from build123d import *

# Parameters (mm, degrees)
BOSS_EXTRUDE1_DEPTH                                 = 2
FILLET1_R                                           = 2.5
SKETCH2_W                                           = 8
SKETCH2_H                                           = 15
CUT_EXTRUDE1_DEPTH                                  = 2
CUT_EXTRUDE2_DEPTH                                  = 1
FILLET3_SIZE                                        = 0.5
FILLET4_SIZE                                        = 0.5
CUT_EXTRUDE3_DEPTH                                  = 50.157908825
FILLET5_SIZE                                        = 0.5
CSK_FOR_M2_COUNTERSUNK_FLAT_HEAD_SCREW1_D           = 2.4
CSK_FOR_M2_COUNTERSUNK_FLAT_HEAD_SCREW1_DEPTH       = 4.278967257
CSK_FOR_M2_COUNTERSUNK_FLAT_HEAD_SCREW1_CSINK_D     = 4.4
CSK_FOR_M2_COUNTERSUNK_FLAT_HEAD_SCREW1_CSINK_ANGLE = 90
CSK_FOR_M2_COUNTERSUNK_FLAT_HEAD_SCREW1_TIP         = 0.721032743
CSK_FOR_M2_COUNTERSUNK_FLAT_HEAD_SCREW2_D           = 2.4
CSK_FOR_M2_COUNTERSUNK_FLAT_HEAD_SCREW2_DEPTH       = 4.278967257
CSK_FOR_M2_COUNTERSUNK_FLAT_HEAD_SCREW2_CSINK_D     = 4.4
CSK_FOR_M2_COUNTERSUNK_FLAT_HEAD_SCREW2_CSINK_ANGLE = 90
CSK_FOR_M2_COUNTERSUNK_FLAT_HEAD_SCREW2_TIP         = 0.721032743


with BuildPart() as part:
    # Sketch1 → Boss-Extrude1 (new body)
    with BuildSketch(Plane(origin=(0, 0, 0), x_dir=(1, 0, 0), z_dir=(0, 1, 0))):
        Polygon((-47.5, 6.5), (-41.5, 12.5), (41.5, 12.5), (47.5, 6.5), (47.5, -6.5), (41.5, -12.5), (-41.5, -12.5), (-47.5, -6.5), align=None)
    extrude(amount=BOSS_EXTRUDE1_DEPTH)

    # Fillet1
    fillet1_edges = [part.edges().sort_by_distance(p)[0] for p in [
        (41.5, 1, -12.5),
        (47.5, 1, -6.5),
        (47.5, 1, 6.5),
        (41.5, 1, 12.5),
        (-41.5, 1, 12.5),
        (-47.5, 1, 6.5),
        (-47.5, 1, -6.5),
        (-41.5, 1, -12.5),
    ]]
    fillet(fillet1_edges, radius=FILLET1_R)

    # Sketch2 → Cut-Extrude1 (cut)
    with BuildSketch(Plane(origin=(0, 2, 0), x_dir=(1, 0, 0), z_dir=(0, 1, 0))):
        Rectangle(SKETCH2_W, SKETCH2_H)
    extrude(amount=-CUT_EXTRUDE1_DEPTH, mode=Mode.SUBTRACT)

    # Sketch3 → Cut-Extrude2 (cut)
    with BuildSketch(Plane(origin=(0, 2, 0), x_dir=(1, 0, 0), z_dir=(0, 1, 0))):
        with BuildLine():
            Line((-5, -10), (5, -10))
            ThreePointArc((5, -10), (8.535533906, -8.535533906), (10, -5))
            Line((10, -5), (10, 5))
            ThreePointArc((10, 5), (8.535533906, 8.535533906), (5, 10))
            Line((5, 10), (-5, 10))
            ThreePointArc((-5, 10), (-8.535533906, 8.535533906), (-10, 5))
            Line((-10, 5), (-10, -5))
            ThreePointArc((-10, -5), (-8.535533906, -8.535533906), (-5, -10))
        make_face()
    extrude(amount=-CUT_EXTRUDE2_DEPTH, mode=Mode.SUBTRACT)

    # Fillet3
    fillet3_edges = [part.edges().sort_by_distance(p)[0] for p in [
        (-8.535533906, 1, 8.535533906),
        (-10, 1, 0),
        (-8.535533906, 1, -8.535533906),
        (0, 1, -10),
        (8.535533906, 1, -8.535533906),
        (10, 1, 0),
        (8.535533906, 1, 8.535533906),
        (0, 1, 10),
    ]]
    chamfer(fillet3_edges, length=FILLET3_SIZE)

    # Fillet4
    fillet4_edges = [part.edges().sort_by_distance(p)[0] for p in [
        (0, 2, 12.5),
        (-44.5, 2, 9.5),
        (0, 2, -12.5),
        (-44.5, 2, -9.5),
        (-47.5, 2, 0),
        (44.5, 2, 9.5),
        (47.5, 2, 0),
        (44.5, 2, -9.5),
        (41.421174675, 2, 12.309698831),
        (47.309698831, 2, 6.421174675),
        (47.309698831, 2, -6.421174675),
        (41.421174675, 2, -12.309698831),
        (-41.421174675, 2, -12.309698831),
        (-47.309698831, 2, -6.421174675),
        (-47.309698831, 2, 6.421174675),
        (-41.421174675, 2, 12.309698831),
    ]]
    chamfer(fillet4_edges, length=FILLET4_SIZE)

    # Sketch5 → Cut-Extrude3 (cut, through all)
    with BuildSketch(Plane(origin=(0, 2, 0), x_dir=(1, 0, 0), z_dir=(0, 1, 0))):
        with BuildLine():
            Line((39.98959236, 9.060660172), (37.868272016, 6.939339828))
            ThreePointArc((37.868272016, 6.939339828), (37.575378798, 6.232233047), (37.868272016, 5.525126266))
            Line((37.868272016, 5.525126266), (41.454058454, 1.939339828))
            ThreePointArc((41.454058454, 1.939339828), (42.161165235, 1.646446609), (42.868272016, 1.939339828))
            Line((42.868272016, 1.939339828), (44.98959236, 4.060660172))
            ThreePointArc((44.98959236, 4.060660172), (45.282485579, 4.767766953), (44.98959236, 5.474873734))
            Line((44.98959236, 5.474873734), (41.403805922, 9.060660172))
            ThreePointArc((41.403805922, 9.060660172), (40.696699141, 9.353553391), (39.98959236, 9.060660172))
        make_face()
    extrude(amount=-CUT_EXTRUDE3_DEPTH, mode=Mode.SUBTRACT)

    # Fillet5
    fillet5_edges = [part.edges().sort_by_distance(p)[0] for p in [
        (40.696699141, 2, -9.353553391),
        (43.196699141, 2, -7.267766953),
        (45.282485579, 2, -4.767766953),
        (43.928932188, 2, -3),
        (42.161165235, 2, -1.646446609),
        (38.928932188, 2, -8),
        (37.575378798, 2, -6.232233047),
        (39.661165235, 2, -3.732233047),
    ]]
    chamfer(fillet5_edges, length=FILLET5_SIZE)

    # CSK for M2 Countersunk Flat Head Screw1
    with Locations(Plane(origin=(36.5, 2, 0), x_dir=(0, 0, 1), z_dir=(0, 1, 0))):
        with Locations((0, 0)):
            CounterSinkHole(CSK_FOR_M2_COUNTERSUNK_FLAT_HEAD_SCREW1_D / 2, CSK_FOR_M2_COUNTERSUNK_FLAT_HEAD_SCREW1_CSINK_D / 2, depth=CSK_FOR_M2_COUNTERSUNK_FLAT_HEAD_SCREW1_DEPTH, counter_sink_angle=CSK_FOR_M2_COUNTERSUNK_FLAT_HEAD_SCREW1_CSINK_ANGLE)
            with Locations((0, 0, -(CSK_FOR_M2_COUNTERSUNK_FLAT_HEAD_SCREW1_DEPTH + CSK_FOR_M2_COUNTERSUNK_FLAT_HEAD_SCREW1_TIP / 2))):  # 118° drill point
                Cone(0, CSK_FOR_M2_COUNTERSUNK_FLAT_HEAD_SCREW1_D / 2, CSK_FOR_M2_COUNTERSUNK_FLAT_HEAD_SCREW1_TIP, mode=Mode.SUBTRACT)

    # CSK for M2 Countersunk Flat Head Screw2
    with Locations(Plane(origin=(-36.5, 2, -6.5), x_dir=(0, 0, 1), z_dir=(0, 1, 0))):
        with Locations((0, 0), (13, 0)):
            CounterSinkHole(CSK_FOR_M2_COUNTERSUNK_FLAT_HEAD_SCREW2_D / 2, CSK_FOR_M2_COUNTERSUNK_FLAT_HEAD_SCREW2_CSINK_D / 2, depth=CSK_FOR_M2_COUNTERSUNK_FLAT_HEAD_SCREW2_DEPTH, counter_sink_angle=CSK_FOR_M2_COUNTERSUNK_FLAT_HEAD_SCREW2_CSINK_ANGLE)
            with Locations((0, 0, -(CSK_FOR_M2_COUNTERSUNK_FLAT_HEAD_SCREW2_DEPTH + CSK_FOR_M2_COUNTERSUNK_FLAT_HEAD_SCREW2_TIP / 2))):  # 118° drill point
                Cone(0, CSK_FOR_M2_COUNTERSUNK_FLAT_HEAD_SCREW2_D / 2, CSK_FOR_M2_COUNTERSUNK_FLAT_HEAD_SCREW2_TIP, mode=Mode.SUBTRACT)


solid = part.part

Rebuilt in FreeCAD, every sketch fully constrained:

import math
import FreeCAD as App
import Part
import Sketcher


def edges_at(feature, points):
    """Names of the edges that pass closest to the given points."""
    edges = feature.Shape.Edges
    near = lambda p: min(range(len(edges)), key=lambda i: edges[i].distToShape(Part.Vertex(*p))[0])
    return sorted({f"Edge{near(p) + 1}" for p in points})

doc = App.newDocument("Part")
body = doc.addObject("PartDesign::Body", "Body")

# Sketch on XZ plane
sketch1 = body.newObject("Sketcher::SketchObject", "Sketch")
sketch1.AttachmentSupport = (doc.getObject("XZ_Plane"), [""])
sketch1.MapMode = "FlatFace"
sketch1.addGeometry([
    Part.LineSegment(App.Vector(-41.5, -12.5, 0), App.Vector(-47.5, -6.5, 0)),  # 0
    Part.LineSegment(App.Vector(-47.5, -6.5, 0), App.Vector(-47.5, 6.5, 0)),  # 1
    Part.LineSegment(App.Vector(-47.5, 6.5, 0), App.Vector(-41.5, 12.5, 0)),  # 2
    Part.LineSegment(App.Vector(-41.5, 12.5, 0), App.Vector(41.5, 12.5, 0)),  # 3
    Part.LineSegment(App.Vector(41.5, 12.5, 0), App.Vector(47.5, 6.5, 0)),  # 4
    Part.LineSegment(App.Vector(47.5, 6.5, 0), App.Vector(47.5, -6.5, 0)),  # 5
    Part.LineSegment(App.Vector(47.5, -6.5, 0), App.Vector(41.5, -12.5, 0)),  # 6
    Part.LineSegment(App.Vector(41.5, -12.5, 0), App.Vector(-41.5, -12.5, 0)),  # 7
], False)
sketch1.addConstraint([
    Sketcher.Constraint("Coincident", 0, 2, 1, 1),
    Sketcher.Constraint("Coincident", 1, 2, 2, 1),
    Sketcher.Constraint("Coincident", 2, 2, 3, 1),
    Sketcher.Constraint("Coincident", 3, 2, 4, 1),
    Sketcher.Constraint("Coincident", 4, 2, 5, 1),
    Sketcher.Constraint("Coincident", 5, 2, 6, 1),
    Sketcher.Constraint("Coincident", 6, 2, 7, 1),
    Sketcher.Constraint("Coincident", 7, 2, 0, 1),
    Sketcher.Constraint("Vertical", 1),
    Sketcher.Constraint("Horizontal", 3),
    Sketcher.Constraint("Vertical", 5),
    Sketcher.Constraint("Horizontal", 7),
    Sketcher.Constraint("Symmetric", 0, 2, 4, 2, -1, 1),
    Sketcher.Constraint("Symmetric", 2, 2, 6, 2, -1, 1),
    Sketcher.Constraint("Perpendicular", 0, 2),
    Sketcher.Constraint("Perpendicular", 2, 4),
    Sketcher.Constraint("Perpendicular", 4, 6),
    Sketcher.Constraint("Horizontal", 1, 2, 4, 2),
    Sketcher.Constraint("Vertical", 3, 2, 6, 2),
    Sketcher.Constraint("DistanceX", 3, 1, 3, 2, 83.0),
    Sketcher.Constraint("DistanceY", 1, 1, 1, 2, 13.0),
    Sketcher.Constraint("DistanceX", 1, 2, 2, 2, 6.0),
])
pad1 = body.newObject("PartDesign::Pad", "Pad")
pad1.Profile = sketch1
pad1.Length = 2
pad1.Reversed = True
doc.recompute()

fillet = body.newObject("PartDesign::Fillet", "Fillet")
fillet.Base = (pad1, edges_at(pad1, [
    (41.5, 1, -12.5),
    (47.5, 1, -6.5),
    (47.5, 1, 6.5),
    (41.5, 1, 12.5),
    (-41.5, 1, 12.5),
    (-47.5, 1, 6.5),
    (-47.5, 1, -6.5),
    (-41.5, 1, -12.5),
]))
fillet.Radius = 2.5

# Sketch on XZ plane
sketch2 = body.newObject("Sketcher::SketchObject", "Sketch001")
sketch2.AttachmentSupport = (doc.getObject("XZ_Plane"), [""])
sketch2.MapMode = "FlatFace"
sketch2.AttachmentOffset = App.Placement(App.Vector(0, 0, -2), App.Rotation())
sketch2.addGeometry([
    Part.LineSegment(App.Vector(-4, -7.5, 0), App.Vector(-4, 7.5, 0)),
    Part.LineSegment(App.Vector(-4, 7.5, 0), App.Vector(4, 7.5, 0)),
    Part.LineSegment(App.Vector(4, 7.5, 0), App.Vector(4, -7.5, 0)),
    Part.LineSegment(App.Vector(4, -7.5, 0), App.Vector(-4, -7.5, 0)),
], False)
sketch2.addConstraint([
    Sketcher.Constraint("Coincident", 0, 2, 1, 1),
    Sketcher.Constraint("Coincident", 1, 2, 2, 1),
    Sketcher.Constraint("Coincident", 2, 2, 3, 1),
    Sketcher.Constraint("Coincident", 3, 2, 0, 1),
    Sketcher.Constraint("Vertical", 0),
    Sketcher.Constraint("Horizontal", 1),
    Sketcher.Constraint("Vertical", 2),
    Sketcher.Constraint("Horizontal", 3),
    Sketcher.Constraint("Symmetric", 0, 2, 2, 2, -1, 1),
    Sketcher.Constraint("DistanceX", 1, 1, 1, 2, 8.0),
    Sketcher.Constraint("DistanceY", 0, 1, 0, 2, 15.0),
])
pocket1 = body.newObject("PartDesign::Pocket", "Pocket")
pocket1.Profile = sketch2
pocket1.Length = 2
pocket1.Reversed = True

# Sketch on XZ plane
sketch3 = body.newObject("Sketcher::SketchObject", "Sketch002")
sketch3.AttachmentSupport = (doc.getObject("XZ_Plane"), [""])
sketch3.MapMode = "FlatFace"
sketch3.AttachmentOffset = App.Placement(App.Vector(0, 0, -2), App.Rotation())
sketch3.addGeometry([
    Part.LineSegment(App.Vector(-5, 10, 0), App.Vector(5, 10, 0)),  # 0
    Part.ArcOfCircle(Part.Circle(App.Vector(5, 5, 0), App.Vector(0, 0, 1), 5), math.radians(0), math.radians(90)),  # 1
    Part.LineSegment(App.Vector(10, 5, 0), App.Vector(10, -5, 0)),  # 2
    Part.ArcOfCircle(Part.Circle(App.Vector(5, -5, 0), App.Vector(0, 0, 1), 5), math.radians(-90), math.radians(0)),  # 3
    Part.LineSegment(App.Vector(5, -10, 0), App.Vector(-5, -10, 0)),  # 4
    Part.ArcOfCircle(Part.Circle(App.Vector(-5, -5, 0), App.Vector(0, 0, 1), 5), math.radians(180), math.radians(270)),  # 5
    Part.LineSegment(App.Vector(-10, -5, 0), App.Vector(-10, 5, 0)),  # 6
    Part.ArcOfCircle(Part.Circle(App.Vector(-5, 5, 0), App.Vector(0, 0, 1), 5), math.radians(90), math.radians(180)),  # 7
], False)
sketch3.addConstraint([
    Sketcher.Constraint("Tangent", 0, 2, 1, 2),
    Sketcher.Constraint("Tangent", 1, 1, 2, 1),
    Sketcher.Constraint("Tangent", 2, 2, 3, 2),
    Sketcher.Constraint("Tangent", 3, 1, 4, 1),
    Sketcher.Constraint("Tangent", 4, 2, 5, 2),
    Sketcher.Constraint("Tangent", 5, 1, 6, 1),
    Sketcher.Constraint("Tangent", 6, 2, 7, 2),
    Sketcher.Constraint("Tangent", 7, 1, 0, 1),
    Sketcher.Constraint("Horizontal", 0),
    Sketcher.Constraint("Vertical", 2),
    Sketcher.Constraint("Horizontal", 4),
    Sketcher.Constraint("Vertical", 6),
    Sketcher.Constraint("Equal", 1, 3),
    Sketcher.Constraint("Equal", 3, 5),
    Sketcher.Constraint("Equal", 5, 7),
    Sketcher.Constraint("Symmetric", 1, 3, 5, 3, -1, 1),
    Sketcher.Constraint("Equal", 4, 2),
    Sketcher.Constraint("Radius", 1, 5.0),
    Sketcher.Constraint("DistanceX", 0, 1, 0, 2, 10.0),
])
pocket2 = body.newObject("PartDesign::Pocket", "Pocket001")
pocket2.Profile = sketch3
pocket2.Length = 1
pocket2.Reversed = True
doc.recompute()

chamfer = body.newObject("PartDesign::Chamfer", "Chamfer")
chamfer.Base = (pocket2, edges_at(pocket2, [
    (-8.536, 1, 8.536),
    (-10, 1, 0),
    (-8.536, 1, -8.536),
    (0, 1, -10),
    (8.536, 1, -8.536),
    (10, 1, 0),
    (8.536, 1, 8.536),
    (0, 1, 10),
]))
chamfer.Size = 0.5
doc.recompute()

chamfer2 = body.newObject("PartDesign::Chamfer", "Chamfer001")
chamfer2.Base = (chamfer, edges_at(chamfer, [
    (0, 2, 12.5),
    (-44.5, 2, 9.5),
    (0, 2, -12.5),
    (-44.5, 2, -9.5),
    (-47.5, 2, 0),
    (44.5, 2, 9.5),
    (47.5, 2, 0),
    (44.5, 2, -9.5),
    (41.421, 2, 12.31),
    (47.31, 2, 6.421),
    (47.31, 2, -6.421),
    (41.421, 2, -12.31),
    (-41.421, 2, -12.31),
    (-47.31, 2, -6.421),
    (-47.31, 2, 6.421),
    (-41.421, 2, 12.31),
]))
chamfer2.Size = 0.5

# Sketch on XZ plane
sketch4 = body.newObject("Sketcher::SketchObject", "Sketch003")
sketch4.AttachmentSupport = (doc.getObject("XZ_Plane"), [""])
sketch4.MapMode = "FlatFace"
sketch4.AttachmentOffset = App.Placement(App.Vector(0, 0, -2), App.Rotation())
sketch4.addGeometry([
    Part.LineSegment(App.Vector(39.989592, -9.06066, 0), App.Vector(37.868272, -6.93934, 0)),  # 0
    Part.ArcOfCircle(Part.Circle(App.Vector(38.575379, -6.232233, 0), App.Vector(0, 0, 1), 1), math.radians(135), math.radians(225)),  # 1
    Part.LineSegment(App.Vector(37.868272, -5.525126, 0), App.Vector(41.454058, -1.93934, 0)),  # 2
    Part.ArcOfCircle(Part.Circle(App.Vector(42.161165, -2.646447, 0), App.Vector(0, 0, 1), 1), math.radians(45), math.radians(135)),  # 3
    Part.LineSegment(App.Vector(42.868272, -1.93934, 0), App.Vector(44.989592, -4.06066, 0)),  # 4
    Part.ArcOfCircle(Part.Circle(App.Vector(44.282486, -4.767767, 0), App.Vector(0, 0, 1), 1), math.radians(-45), math.radians(45)),  # 5
    Part.LineSegment(App.Vector(44.989592, -5.474874, 0), App.Vector(41.403806, -9.06066, 0)),  # 6
    Part.ArcOfCircle(Part.Circle(App.Vector(40.696699, -8.353553, 0), App.Vector(0, 0, 1), 1), math.radians(-135), math.radians(-45)),  # 7
], False)
sketch4.addConstraint([
    Sketcher.Constraint("Tangent", 0, 2, 1, 2),
    Sketcher.Constraint("Tangent", 1, 1, 2, 1),
    Sketcher.Constraint("Tangent", 2, 2, 3, 2),
    Sketcher.Constraint("Tangent", 3, 1, 4, 1),
    Sketcher.Constraint("Tangent", 4, 2, 5, 2),
    Sketcher.Constraint("Tangent", 5, 1, 6, 1),
    Sketcher.Constraint("Tangent", 6, 2, 7, 2),
    Sketcher.Constraint("Tangent", 7, 1, 0, 1),
    Sketcher.Constraint("Equal", 1, 3),
    Sketcher.Constraint("Equal", 3, 5),
    Sketcher.Constraint("Equal", 5, 7),
    Sketcher.Constraint("Perpendicular", 0, 2),
    Sketcher.Constraint("Perpendicular", 2, 4),
    Sketcher.Constraint("Perpendicular", 4, 6),
    Sketcher.Constraint("Horizontal", 2, 2, 3, 1),
    Sketcher.Constraint("Radius", 1, 1.0),
    Sketcher.Constraint("Distance", 0, 3.0),
    Sketcher.Constraint("DistanceY", 0, 2, 2, 2, 5.0),
    Sketcher.Constraint("DistanceX", -1, 1, 7, 3, 40.696699),
    Sketcher.Constraint("DistanceY", 0, 2, -1, 1, 6.93934),
])
pocket3 = body.newObject("PartDesign::Pocket", "Pocket002")
pocket3.Profile = sketch4
pocket3.Type = "ThroughAll"
pocket3.Reversed = True
doc.recompute()

chamfer3 = body.newObject("PartDesign::Chamfer", "Chamfer002")
chamfer3.Base = (pocket3, edges_at(pocket3, [
    (40.697, 2, -9.354),
    (43.197, 2, -7.268),
    (45.282, 2, -4.768),
    (43.929, 2, -3),
    (42.161, 2, -1.646),
    (38.929, 2, -8),
    (37.575, 2, -6.232),
    (39.661, 2, -3.732),
]))
chamfer3.Size = 0.5

# Sketch on XZ plane
sketch5 = body.newObject("Sketcher::SketchObject", "Sketch004")
sketch5.AttachmentSupport = (doc.getObject("XZ_Plane"), [""])
sketch5.MapMode = "FlatFace"
sketch5.AttachmentOffset = App.Placement(App.Vector(0, 0, -2), App.Rotation())
sketch5.addGeometry(Part.Circle(App.Vector(36.5, 0, 0), App.Vector(0, 0, 1), 1.2), False)
sketch5.addConstraint([
    Sketcher.Constraint("PointOnObject", 0, 3, -1),
    Sketcher.Constraint("Diameter", 0, 2.4),
    Sketcher.Constraint("DistanceX", -1, 1, 0, 3, 36.5),
])
doc.recompute()
hole = body.newObject("PartDesign::Hole", "Hole")
hole.Profile = sketch5
hole.ThreadType = "None"
hole.Diameter = 2.4
hole.DepthType = "Dimension"
hole.Depth = 4.278967
hole.DrillPoint = "Angled"
hole.DrillPointAngle = 118
hole.HoleCutType = "Countersink"
hole.HoleCutDiameter = 4.4
hole.HoleCutCountersinkAngle = 90
hole.Reversed = True

# Sketch on XZ plane
sketch6 = body.newObject("Sketcher::SketchObject", "Sketch005")
sketch6.AttachmentSupport = (doc.getObject("XZ_Plane"), [""])
sketch6.MapMode = "FlatFace"
sketch6.AttachmentOffset = App.Placement(App.Vector(0, 0, -2), App.Rotation())
sketch6.addGeometry([
    Part.Circle(App.Vector(-36.5, -6.5, 0), App.Vector(0, 0, 1), 1.2),
    Part.Circle(App.Vector(-36.5, 6.5, 0), App.Vector(0, 0, 1), 1.2),
], False)
sketch6.addConstraint([
    Sketcher.Constraint("Equal", 0, 1),
    Sketcher.Constraint("Symmetric", 0, 3, 1, 3, -1),
    Sketcher.Constraint("Diameter", 0, 2.4),
    Sketcher.Constraint("DistanceY", 0, 3, 1, 3, 13.0),
    Sketcher.Constraint("DistanceX", 0, 3, -1, 1, 36.5),
])
doc.recompute()
hole2 = body.newObject("PartDesign::Hole", "Hole001")
hole2.Profile = sketch6
hole2.ThreadType = "None"
hole2.Diameter = 2.4
hole2.DepthType = "Dimension"
hole2.Depth = 4.278967
hole2.DrillPoint = "Angled"
hole2.DrillPointAngle = 118
hole2.HoleCutType = "Countersink"
hole2.HoleCutDiameter = 4.4
hole2.HoleCutCountersinkAngle = 90
hole2.Reversed = True

doc.recompute()
